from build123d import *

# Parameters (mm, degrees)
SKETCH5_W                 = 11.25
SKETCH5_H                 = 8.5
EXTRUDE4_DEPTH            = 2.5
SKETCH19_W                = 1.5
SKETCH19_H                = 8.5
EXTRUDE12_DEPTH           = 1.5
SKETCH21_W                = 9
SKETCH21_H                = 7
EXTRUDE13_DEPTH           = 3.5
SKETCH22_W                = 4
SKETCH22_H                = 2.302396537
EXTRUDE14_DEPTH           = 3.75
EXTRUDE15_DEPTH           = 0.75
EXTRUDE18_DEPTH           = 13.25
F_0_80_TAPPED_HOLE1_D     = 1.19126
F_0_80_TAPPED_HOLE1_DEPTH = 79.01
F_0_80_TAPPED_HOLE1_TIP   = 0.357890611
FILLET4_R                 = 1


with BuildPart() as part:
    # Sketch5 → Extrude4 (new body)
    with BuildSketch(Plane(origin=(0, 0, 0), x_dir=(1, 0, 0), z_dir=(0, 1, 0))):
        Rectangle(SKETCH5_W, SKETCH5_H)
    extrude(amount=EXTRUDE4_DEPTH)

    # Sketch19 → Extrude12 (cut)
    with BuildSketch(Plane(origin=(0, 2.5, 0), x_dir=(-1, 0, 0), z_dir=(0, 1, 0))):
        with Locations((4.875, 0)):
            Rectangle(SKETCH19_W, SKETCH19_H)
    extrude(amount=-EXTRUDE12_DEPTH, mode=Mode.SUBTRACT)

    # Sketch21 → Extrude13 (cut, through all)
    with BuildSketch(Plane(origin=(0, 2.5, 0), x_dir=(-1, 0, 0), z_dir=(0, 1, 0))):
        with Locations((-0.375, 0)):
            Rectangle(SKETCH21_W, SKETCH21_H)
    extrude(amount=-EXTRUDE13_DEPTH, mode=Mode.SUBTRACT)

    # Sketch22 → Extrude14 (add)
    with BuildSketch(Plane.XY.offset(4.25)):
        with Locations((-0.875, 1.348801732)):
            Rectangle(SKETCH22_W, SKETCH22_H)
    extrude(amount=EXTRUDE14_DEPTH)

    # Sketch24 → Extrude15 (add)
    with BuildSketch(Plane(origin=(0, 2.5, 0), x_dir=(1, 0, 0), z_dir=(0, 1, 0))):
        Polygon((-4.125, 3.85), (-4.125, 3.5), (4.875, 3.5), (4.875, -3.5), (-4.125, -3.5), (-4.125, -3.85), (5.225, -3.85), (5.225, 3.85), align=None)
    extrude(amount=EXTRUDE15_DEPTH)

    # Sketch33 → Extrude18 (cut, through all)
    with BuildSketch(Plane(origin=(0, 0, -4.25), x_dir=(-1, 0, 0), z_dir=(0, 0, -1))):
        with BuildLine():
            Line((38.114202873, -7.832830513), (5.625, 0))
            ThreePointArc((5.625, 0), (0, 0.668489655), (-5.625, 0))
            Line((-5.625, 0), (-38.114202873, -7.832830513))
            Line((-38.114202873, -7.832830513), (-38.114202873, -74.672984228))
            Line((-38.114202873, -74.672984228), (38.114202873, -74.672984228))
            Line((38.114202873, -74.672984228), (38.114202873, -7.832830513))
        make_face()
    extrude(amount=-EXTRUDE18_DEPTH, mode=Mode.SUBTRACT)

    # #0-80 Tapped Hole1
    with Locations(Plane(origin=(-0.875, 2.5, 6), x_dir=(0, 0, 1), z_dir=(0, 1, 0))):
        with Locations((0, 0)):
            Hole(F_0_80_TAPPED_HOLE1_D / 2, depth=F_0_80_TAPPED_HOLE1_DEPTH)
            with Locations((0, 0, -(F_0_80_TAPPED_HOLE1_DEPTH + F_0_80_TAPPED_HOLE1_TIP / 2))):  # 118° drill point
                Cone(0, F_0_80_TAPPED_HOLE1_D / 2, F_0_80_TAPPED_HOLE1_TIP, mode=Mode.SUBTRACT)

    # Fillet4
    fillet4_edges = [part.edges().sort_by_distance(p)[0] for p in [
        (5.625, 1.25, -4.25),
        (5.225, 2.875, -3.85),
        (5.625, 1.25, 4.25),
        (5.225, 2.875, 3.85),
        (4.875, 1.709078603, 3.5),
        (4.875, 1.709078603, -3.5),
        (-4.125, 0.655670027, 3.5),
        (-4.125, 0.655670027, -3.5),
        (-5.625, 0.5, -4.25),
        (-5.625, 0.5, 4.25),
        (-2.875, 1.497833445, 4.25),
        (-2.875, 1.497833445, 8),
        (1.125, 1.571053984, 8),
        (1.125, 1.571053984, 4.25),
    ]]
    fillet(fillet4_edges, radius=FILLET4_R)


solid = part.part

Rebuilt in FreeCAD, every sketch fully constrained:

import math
import FreeCAD as App
import Part
import Sketcher
from FreeCAD import Vector


def edges_at(feature, points):
    """Names of the edges that pass closest to the given points."""
    edges = feature.Shape.Edges
    near = lambda p: min(range(len(edges)), key=lambda i: edges[i].distToShape(Part.Vertex(*p))[0])
    return sorted({f"Edge{near(p) + 1}" for p in points})


def add_polygon(sketch, points):
    """Adds a closed chain of lines whose ends are joined by coincident constraints."""
    first, n = sketch.GeometryCount, len(points)
    for a, b in zip(points, points[1:] + points[:1]):
        sketch.addGeometry(Part.LineSegment(App.Vector(*a, 0), App.Vector(*b, 0)), False)
    for i in range(n):
        sketch.addConstraint(Sketcher.Constraint("Coincident", first + i, 2, first + (i + 1) % n, 1))

doc = App.newDocument("Part")
body = doc.addObject("PartDesign::Body", "Body")

# Sketch on XZ plane
sketch1 = doc.addObject("Sketcher::SketchObject", "Sketch")
body.addObject(sketch1)
sketch1.AttachmentSupport = (doc.XZ_Plane, [""])
sketch1.MapMode = "FlatFace"
add_polygon(sketch1, [(-6, -4), (-6, 4), (6, 4), (6, -4)])  # lines 0-3
sketch1.addConstraint(Sketcher.Constraint("Vertical", 0))
sketch1.addConstraint(Sketcher.Constraint("Horizontal", 1))
sketch1.addConstraint(Sketcher.Constraint("Vertical", 2))
sketch1.addConstraint(Sketcher.Constraint("Horizontal", 3))
sketch1.addConstraint(Sketcher.Constraint("Symmetric", 0, 2, 2, 2, -1, 1))
sketch1.addConstraint(Sketcher.Constraint("DistanceY", 0, 1, 0, 2, 8.5))
sketch1.addConstraint(Sketcher.Constraint("DistanceX", 1, 1, 1, 2, 11.25))
pad1 = doc.addObject("PartDesign::Pad", "Pad")
body.addObject(pad1)
pad1.Profile = sketch1
pad1.Length = 2.5
pad1.Reversed = True

# Sketch on XZ plane
sketch2 = doc.addObject("Sketcher::SketchObject", "Sketch001")
body.addObject(sketch2)
sketch2.AttachmentSupport = (doc.XZ_Plane, [""])
sketch2.MapMode = "FlatFace"
sketch2.AttachmentOffset = App.Placement(Vector(0, 0, -2.5), App.Rotation())
add_polygon(sketch2, [(-4.1, 4.2), (-4.1, -4.2), (-5.6, -4.2), (-5.6, 4.2)])  # lines 0-3
sketch2.addConstraint(Sketcher.Constraint("Vertical", 0))
sketch2.addConstraint(Sketcher.Constraint("Horizontal", 1))
sketch2.addConstraint(Sketcher.Constraint("Vertical", 2))
sketch2.addConstraint(Sketcher.Constraint("Horizontal", 3))
sketch2.addConstraint(Sketcher.Constraint("DistanceX", 1, 2, 1, 1, 1.5))
sketch2.addConstraint(Sketcher.Constraint("DistanceY", 0, 2, 0, 1, 8.5))
sketch2.addConstraint(Sketcher.Constraint("DistanceY", 0, 2, -1, 1, 4.25))
sketch2.addConstraint(Sketcher.Constraint("DistanceX", 0, 2, -1, 1, 4.125))
pocket1 = doc.addObject("PartDesign::Pocket", "Pocket")
body.addObject(pocket1)
pocket1.Profile = sketch2
pocket1.Length = 1.5
pocket1.Reversed = True

# Sketch on XZ plane
sketch3 = doc.addObject("Sketcher::SketchObject", "Sketch002")
body.addObject(sketch3)
sketch3.AttachmentSupport = (doc.XZ_Plane, [""])
sketch3.MapMode = "FlatFace"
sketch3.AttachmentOffset = App.Placement(Vector(0, 0, -2.5), App.Rotation())
add_polygon(sketch3, [(5, 4), (5, -4), (-4, -4), (-4, 4)])  # lines 0-3
sketch3.addConstraint(Sketcher.Constraint("Vertical", 0))
sketch3.addConstraint(Sketcher.Constraint("Horizontal", 1))
sketch3.addConstraint(Sketcher.Constraint("Vertical", 2))
sketch3.addConstraint(Sketcher.Constraint("Horizontal", 3))
sketch3.addConstraint(Sketcher.Constraint("DistanceX", 1, 2, 1, 1, 9.0))
sketch3.addConstraint(Sketcher.Constraint("DistanceY", 0, 2, 0, 1, 7.0))
sketch3.addConstraint(Sketcher.Constraint("DistanceY", 0, 2, -1, 1, 3.5))
sketch3.addConstraint(Sketcher.Constraint("DistanceX", -1, 1, 0, 2, 4.875))
pocket2 = doc.addObject("PartDesign::Pocket", "Pocket001")
body.addObject(pocket2)
pocket2.Profile = sketch3
pocket2.Type = "ThroughAll"
pocket2.Reversed = True

# Sketch on XY plane
sketch4 = doc.addObject("Sketcher::SketchObject", "Sketch003")
body.addObject(sketch4)
sketch4.AttachmentSupport = (doc.XY_Plane, [""])
sketch4.MapMode = "FlatFace"
sketch4.AttachmentOffset = App.Placement(Vector(0, 0, 4.25), App.Rotation())
add_polygon(sketch4, [(-2.9, 2.5), (-2.9, 0.2), (1.1, 0.2), (1.1, 2.5)])  # lines 0-3
sketch4.addConstraint(Sketcher.Constraint("Vertical", 0))
sketch4.addConstraint(Sketcher.Constraint("Horizontal", 1))
sketch4.addConstraint(Sketcher.Constraint("Vertical", 2))
sketch4.addConstraint(Sketcher.Constraint("Horizontal", 3))
sketch4.addConstraint(Sketcher.Constraint("DistanceX", 1, 1, 1, 2, 4.0))
sketch4.addConstraint(Sketcher.Constraint("DistanceY", -1, 1, 2, 2, 2.5))
sketch4.addConstraint(Sketcher.Constraint("DistanceX", 0, 2, -1, 1, 2.875))
sketch4.addConstraint(Sketcher.Constraint("DistanceY", 0, 2, 0, 1, 2.302397))
pad2 = doc.addObject("PartDesign::Pad", "Pad001")
body.addObject(pad2)
pad2.Profile = sketch4
pad2.Length = 3.75

# Sketch on XZ plane
sketch5 = doc.addObject("Sketcher::SketchObject", "Sketch004")
body.addObject(sketch5)
sketch5.AttachmentSupport = (doc.XZ_Plane, [""])
sketch5.MapMode = "FlatFace"
sketch5.AttachmentOffset = App.Placement(Vector(0, 0, -2.5), App.Rotation())
add_polygon(sketch5, [(-4.12, -3.85), (-4.12, -3.5), (4.88, -3.5), (4.88, 3.5), (-4.12, 3.5), (-4.12, 3.85), (5.22, 3.85), (5.22, -3.85)])  # lines 0-7
sketch5.addConstraint(Sketcher.Constraint("Vertical", 0))
sketch5.addConstraint(Sketcher.Constraint("Horizontal", 1))
sketch5.addConstraint(Sketcher.Constraint("Vertical", 2))
sketch5.addConstraint(Sketcher.Constraint("Horizontal", 3))
sketch5.addConstraint(Sketcher.Constraint("Vertical", 4))
sketch5.addConstraint(Sketcher.Constraint("Horizontal", 5))
sketch5.addConstraint(Sketcher.Constraint("Vertical", 6))
sketch5.addConstraint(Sketcher.Constraint("Horizontal", 7))
sketch5.addConstraint(Sketcher.Constraint("Symmetric", 0, 2, 3, 2, -1))
sketch5.addConstraint(Sketcher.Constraint("Equal", 0, 4))
sketch5.addConstraint(Sketcher.Constraint("DistanceX", 1, 1, 1, 2, 9.0))
sketch5.addConstraint(Sketcher.Constraint("DistanceY", 2, 1, 2, 2, 7.0))
sketch5.addConstraint(Sketcher.Constraint("DistanceY", 6, 2, 6, 1, 7.7))
sketch5.addConstraint(Sketcher.Constraint("DistanceX", 5, 1, 5, 2, 9.35))
sketch5.addConstraint(Sketcher.Constraint("DistanceX", 0, 2, -1, 1, 4.125))
pad3 = doc.addObject("PartDesign::Pad", "Pad002")
body.addObject(pad3)
pad3.Profile = sketch5
pad3.Length = 0.75
pad3.Reversed = True

# Sketch on XY plane
sketch6 = doc.addObject("Sketcher::SketchObject", "Sketch005")
body.addObject(sketch6)
sketch6.AttachmentSupport = (doc.XY_Plane, [""])
sketch6.MapMode = "FlatFace"
sketch6.AttachmentOffset = App.Placement(Vector(0, 0, -4.25), App.Rotation())
sketch6.addGeometry(Part.LineSegment(Vector(-38, -8, 0), Vector(-6, 0, 0)), False)
sketch6.addGeometry(Part.ArcOfCircle(Part.Circle(Vector(0, -23, 0), Vector(0, 0, 1), 24), math.radians(76), math.radians(104)), False)
sketch6.addGeometry(Part.LineSegment(Vector(6, 0, 0), Vector(38, -8, 0)), False)
sketch6.addGeometry(Part.LineSegment(Vector(38, -8, 0), Vector(38, -75, 0)), False)
sketch6.addGeometry(Part.LineSegment(Vector(38, -75, 0), Vector(-38, -75, 0)), False)
sketch6.addGeometry(Part.LineSegment(Vector(-38, -75, 0), Vector(-38, -8, 0)), False)
sketch6.addConstraint(Sketcher.Constraint("Tangent", 0, 2, 1, 2))
sketch6.addConstraint(Sketcher.Constraint("Tangent", 1, 1, 2, 1))
sketch6.addConstraint(Sketcher.Constraint("Coincident", 2, 2, 3, 1))
sketch6.addConstraint(Sketcher.Constraint("Coincident", 3, 2, 4, 1))
sketch6.addConstraint(Sketcher.Constraint("Coincident", 4, 2, 5, 1))
sketch6.addConstraint(Sketcher.Constraint("Coincident", 5, 2, 0, 1))
sketch6.addConstraint(Sketcher.Constraint("Vertical", 3))
sketch6.addConstraint(Sketcher.Constraint("Horizontal", 4))
sketch6.addConstraint(Sketcher.Constraint("Vertical", 5))
sketch6.addConstraint(Sketcher.Constraint("Symmetric", 0, 2, 1, 1, -1, 1))
sketch6.addConstraint(Sketcher.Constraint("Symmetric", 2, 2, 5, 2, -2))
sketch6.addConstraint(Sketcher.Constraint("Radius", 1, 24.0))
sketch6.addConstraint(Sketcher.Constraint("DistanceX", 0, 2, 1, 1, 11.25))
sketch6.addConstraint(Sketcher.Constraint("DistanceX", 4, 2, 4, 1, 76.228406))
sketch6.addConstraint(Sketcher.Constraint("DistanceY", 3, 2, 3, 1, 66.840154))
pocket3 = doc.addObject("PartDesign::Pocket", "Pocket002")
body.addObject(pocket3)
pocket3.Profile = sketch6
pocket3.Type = "ThroughAll"
pocket3.Reversed = True

# Sketch on XZ plane
sketch7 = doc.addObject("Sketcher::SketchObject", "Sketch006")
body.addObject(sketch7)
sketch7.AttachmentSupport = (doc.XZ_Plane, [""])
sketch7.MapMode = "FlatFace"
sketch7.AttachmentOffset = App.Placement(Vector(0, 0, -2.5), App.Rotation())
sketch7.addGeometry(Part.Circle(Vector(-0.9, 6, 0), Vector(0, 0, 1), 0.6), False)
sketch7.addConstraint(Sketcher.Constraint("DistanceY", -1, 1, 0, 3, 6.0))
sketch7.addConstraint(Sketcher.Constraint("Diameter", 0, 1.19126))
sketch7.addConstraint(Sketcher.Constraint("DistanceX", 0, 3, -1, 1, 0.875))
doc.recompute()
hole = doc.addObject("PartDesign::Hole", "Hole")
body.addObject(hole)
hole.Profile = sketch7
hole.ThreadType = "None"
hole.Diameter = 1.19126
hole.DepthType = "Dimension"
hole.Depth = 79.01
hole.DrillPoint = "Angled"
hole.DrillPointAngle = 118
hole.Reversed = True
doc.recompute()

fillet = doc.addObject("PartDesign::Fillet", "Fillet")
body.addObject(fillet)
fillet.Base = (hole, edges_at(hole, [
    (5.625, 1.25, -4.25),
    (5.225, 2.875, -3.85),
    (5.625, 1.25, 4.25),
    (5.225, 2.875, 3.85),
    (4.875, 1.709, 3.5),
    (4.875, 1.709, -3.5),
    (-4.125, 0.656, 3.5),
    (-4.125, 0.656, -3.5),
    (-5.625, 0.5, -4.25),
    (-5.625, 0.5, 4.25),
    (-2.875, 1.498, 4.25),
    (-2.875, 1.498, 8),
    (1.125, 1.571, 8),
    (1.125, 1.571, 4.25),
]))
fillet.Radius = 1

doc.recompute()
